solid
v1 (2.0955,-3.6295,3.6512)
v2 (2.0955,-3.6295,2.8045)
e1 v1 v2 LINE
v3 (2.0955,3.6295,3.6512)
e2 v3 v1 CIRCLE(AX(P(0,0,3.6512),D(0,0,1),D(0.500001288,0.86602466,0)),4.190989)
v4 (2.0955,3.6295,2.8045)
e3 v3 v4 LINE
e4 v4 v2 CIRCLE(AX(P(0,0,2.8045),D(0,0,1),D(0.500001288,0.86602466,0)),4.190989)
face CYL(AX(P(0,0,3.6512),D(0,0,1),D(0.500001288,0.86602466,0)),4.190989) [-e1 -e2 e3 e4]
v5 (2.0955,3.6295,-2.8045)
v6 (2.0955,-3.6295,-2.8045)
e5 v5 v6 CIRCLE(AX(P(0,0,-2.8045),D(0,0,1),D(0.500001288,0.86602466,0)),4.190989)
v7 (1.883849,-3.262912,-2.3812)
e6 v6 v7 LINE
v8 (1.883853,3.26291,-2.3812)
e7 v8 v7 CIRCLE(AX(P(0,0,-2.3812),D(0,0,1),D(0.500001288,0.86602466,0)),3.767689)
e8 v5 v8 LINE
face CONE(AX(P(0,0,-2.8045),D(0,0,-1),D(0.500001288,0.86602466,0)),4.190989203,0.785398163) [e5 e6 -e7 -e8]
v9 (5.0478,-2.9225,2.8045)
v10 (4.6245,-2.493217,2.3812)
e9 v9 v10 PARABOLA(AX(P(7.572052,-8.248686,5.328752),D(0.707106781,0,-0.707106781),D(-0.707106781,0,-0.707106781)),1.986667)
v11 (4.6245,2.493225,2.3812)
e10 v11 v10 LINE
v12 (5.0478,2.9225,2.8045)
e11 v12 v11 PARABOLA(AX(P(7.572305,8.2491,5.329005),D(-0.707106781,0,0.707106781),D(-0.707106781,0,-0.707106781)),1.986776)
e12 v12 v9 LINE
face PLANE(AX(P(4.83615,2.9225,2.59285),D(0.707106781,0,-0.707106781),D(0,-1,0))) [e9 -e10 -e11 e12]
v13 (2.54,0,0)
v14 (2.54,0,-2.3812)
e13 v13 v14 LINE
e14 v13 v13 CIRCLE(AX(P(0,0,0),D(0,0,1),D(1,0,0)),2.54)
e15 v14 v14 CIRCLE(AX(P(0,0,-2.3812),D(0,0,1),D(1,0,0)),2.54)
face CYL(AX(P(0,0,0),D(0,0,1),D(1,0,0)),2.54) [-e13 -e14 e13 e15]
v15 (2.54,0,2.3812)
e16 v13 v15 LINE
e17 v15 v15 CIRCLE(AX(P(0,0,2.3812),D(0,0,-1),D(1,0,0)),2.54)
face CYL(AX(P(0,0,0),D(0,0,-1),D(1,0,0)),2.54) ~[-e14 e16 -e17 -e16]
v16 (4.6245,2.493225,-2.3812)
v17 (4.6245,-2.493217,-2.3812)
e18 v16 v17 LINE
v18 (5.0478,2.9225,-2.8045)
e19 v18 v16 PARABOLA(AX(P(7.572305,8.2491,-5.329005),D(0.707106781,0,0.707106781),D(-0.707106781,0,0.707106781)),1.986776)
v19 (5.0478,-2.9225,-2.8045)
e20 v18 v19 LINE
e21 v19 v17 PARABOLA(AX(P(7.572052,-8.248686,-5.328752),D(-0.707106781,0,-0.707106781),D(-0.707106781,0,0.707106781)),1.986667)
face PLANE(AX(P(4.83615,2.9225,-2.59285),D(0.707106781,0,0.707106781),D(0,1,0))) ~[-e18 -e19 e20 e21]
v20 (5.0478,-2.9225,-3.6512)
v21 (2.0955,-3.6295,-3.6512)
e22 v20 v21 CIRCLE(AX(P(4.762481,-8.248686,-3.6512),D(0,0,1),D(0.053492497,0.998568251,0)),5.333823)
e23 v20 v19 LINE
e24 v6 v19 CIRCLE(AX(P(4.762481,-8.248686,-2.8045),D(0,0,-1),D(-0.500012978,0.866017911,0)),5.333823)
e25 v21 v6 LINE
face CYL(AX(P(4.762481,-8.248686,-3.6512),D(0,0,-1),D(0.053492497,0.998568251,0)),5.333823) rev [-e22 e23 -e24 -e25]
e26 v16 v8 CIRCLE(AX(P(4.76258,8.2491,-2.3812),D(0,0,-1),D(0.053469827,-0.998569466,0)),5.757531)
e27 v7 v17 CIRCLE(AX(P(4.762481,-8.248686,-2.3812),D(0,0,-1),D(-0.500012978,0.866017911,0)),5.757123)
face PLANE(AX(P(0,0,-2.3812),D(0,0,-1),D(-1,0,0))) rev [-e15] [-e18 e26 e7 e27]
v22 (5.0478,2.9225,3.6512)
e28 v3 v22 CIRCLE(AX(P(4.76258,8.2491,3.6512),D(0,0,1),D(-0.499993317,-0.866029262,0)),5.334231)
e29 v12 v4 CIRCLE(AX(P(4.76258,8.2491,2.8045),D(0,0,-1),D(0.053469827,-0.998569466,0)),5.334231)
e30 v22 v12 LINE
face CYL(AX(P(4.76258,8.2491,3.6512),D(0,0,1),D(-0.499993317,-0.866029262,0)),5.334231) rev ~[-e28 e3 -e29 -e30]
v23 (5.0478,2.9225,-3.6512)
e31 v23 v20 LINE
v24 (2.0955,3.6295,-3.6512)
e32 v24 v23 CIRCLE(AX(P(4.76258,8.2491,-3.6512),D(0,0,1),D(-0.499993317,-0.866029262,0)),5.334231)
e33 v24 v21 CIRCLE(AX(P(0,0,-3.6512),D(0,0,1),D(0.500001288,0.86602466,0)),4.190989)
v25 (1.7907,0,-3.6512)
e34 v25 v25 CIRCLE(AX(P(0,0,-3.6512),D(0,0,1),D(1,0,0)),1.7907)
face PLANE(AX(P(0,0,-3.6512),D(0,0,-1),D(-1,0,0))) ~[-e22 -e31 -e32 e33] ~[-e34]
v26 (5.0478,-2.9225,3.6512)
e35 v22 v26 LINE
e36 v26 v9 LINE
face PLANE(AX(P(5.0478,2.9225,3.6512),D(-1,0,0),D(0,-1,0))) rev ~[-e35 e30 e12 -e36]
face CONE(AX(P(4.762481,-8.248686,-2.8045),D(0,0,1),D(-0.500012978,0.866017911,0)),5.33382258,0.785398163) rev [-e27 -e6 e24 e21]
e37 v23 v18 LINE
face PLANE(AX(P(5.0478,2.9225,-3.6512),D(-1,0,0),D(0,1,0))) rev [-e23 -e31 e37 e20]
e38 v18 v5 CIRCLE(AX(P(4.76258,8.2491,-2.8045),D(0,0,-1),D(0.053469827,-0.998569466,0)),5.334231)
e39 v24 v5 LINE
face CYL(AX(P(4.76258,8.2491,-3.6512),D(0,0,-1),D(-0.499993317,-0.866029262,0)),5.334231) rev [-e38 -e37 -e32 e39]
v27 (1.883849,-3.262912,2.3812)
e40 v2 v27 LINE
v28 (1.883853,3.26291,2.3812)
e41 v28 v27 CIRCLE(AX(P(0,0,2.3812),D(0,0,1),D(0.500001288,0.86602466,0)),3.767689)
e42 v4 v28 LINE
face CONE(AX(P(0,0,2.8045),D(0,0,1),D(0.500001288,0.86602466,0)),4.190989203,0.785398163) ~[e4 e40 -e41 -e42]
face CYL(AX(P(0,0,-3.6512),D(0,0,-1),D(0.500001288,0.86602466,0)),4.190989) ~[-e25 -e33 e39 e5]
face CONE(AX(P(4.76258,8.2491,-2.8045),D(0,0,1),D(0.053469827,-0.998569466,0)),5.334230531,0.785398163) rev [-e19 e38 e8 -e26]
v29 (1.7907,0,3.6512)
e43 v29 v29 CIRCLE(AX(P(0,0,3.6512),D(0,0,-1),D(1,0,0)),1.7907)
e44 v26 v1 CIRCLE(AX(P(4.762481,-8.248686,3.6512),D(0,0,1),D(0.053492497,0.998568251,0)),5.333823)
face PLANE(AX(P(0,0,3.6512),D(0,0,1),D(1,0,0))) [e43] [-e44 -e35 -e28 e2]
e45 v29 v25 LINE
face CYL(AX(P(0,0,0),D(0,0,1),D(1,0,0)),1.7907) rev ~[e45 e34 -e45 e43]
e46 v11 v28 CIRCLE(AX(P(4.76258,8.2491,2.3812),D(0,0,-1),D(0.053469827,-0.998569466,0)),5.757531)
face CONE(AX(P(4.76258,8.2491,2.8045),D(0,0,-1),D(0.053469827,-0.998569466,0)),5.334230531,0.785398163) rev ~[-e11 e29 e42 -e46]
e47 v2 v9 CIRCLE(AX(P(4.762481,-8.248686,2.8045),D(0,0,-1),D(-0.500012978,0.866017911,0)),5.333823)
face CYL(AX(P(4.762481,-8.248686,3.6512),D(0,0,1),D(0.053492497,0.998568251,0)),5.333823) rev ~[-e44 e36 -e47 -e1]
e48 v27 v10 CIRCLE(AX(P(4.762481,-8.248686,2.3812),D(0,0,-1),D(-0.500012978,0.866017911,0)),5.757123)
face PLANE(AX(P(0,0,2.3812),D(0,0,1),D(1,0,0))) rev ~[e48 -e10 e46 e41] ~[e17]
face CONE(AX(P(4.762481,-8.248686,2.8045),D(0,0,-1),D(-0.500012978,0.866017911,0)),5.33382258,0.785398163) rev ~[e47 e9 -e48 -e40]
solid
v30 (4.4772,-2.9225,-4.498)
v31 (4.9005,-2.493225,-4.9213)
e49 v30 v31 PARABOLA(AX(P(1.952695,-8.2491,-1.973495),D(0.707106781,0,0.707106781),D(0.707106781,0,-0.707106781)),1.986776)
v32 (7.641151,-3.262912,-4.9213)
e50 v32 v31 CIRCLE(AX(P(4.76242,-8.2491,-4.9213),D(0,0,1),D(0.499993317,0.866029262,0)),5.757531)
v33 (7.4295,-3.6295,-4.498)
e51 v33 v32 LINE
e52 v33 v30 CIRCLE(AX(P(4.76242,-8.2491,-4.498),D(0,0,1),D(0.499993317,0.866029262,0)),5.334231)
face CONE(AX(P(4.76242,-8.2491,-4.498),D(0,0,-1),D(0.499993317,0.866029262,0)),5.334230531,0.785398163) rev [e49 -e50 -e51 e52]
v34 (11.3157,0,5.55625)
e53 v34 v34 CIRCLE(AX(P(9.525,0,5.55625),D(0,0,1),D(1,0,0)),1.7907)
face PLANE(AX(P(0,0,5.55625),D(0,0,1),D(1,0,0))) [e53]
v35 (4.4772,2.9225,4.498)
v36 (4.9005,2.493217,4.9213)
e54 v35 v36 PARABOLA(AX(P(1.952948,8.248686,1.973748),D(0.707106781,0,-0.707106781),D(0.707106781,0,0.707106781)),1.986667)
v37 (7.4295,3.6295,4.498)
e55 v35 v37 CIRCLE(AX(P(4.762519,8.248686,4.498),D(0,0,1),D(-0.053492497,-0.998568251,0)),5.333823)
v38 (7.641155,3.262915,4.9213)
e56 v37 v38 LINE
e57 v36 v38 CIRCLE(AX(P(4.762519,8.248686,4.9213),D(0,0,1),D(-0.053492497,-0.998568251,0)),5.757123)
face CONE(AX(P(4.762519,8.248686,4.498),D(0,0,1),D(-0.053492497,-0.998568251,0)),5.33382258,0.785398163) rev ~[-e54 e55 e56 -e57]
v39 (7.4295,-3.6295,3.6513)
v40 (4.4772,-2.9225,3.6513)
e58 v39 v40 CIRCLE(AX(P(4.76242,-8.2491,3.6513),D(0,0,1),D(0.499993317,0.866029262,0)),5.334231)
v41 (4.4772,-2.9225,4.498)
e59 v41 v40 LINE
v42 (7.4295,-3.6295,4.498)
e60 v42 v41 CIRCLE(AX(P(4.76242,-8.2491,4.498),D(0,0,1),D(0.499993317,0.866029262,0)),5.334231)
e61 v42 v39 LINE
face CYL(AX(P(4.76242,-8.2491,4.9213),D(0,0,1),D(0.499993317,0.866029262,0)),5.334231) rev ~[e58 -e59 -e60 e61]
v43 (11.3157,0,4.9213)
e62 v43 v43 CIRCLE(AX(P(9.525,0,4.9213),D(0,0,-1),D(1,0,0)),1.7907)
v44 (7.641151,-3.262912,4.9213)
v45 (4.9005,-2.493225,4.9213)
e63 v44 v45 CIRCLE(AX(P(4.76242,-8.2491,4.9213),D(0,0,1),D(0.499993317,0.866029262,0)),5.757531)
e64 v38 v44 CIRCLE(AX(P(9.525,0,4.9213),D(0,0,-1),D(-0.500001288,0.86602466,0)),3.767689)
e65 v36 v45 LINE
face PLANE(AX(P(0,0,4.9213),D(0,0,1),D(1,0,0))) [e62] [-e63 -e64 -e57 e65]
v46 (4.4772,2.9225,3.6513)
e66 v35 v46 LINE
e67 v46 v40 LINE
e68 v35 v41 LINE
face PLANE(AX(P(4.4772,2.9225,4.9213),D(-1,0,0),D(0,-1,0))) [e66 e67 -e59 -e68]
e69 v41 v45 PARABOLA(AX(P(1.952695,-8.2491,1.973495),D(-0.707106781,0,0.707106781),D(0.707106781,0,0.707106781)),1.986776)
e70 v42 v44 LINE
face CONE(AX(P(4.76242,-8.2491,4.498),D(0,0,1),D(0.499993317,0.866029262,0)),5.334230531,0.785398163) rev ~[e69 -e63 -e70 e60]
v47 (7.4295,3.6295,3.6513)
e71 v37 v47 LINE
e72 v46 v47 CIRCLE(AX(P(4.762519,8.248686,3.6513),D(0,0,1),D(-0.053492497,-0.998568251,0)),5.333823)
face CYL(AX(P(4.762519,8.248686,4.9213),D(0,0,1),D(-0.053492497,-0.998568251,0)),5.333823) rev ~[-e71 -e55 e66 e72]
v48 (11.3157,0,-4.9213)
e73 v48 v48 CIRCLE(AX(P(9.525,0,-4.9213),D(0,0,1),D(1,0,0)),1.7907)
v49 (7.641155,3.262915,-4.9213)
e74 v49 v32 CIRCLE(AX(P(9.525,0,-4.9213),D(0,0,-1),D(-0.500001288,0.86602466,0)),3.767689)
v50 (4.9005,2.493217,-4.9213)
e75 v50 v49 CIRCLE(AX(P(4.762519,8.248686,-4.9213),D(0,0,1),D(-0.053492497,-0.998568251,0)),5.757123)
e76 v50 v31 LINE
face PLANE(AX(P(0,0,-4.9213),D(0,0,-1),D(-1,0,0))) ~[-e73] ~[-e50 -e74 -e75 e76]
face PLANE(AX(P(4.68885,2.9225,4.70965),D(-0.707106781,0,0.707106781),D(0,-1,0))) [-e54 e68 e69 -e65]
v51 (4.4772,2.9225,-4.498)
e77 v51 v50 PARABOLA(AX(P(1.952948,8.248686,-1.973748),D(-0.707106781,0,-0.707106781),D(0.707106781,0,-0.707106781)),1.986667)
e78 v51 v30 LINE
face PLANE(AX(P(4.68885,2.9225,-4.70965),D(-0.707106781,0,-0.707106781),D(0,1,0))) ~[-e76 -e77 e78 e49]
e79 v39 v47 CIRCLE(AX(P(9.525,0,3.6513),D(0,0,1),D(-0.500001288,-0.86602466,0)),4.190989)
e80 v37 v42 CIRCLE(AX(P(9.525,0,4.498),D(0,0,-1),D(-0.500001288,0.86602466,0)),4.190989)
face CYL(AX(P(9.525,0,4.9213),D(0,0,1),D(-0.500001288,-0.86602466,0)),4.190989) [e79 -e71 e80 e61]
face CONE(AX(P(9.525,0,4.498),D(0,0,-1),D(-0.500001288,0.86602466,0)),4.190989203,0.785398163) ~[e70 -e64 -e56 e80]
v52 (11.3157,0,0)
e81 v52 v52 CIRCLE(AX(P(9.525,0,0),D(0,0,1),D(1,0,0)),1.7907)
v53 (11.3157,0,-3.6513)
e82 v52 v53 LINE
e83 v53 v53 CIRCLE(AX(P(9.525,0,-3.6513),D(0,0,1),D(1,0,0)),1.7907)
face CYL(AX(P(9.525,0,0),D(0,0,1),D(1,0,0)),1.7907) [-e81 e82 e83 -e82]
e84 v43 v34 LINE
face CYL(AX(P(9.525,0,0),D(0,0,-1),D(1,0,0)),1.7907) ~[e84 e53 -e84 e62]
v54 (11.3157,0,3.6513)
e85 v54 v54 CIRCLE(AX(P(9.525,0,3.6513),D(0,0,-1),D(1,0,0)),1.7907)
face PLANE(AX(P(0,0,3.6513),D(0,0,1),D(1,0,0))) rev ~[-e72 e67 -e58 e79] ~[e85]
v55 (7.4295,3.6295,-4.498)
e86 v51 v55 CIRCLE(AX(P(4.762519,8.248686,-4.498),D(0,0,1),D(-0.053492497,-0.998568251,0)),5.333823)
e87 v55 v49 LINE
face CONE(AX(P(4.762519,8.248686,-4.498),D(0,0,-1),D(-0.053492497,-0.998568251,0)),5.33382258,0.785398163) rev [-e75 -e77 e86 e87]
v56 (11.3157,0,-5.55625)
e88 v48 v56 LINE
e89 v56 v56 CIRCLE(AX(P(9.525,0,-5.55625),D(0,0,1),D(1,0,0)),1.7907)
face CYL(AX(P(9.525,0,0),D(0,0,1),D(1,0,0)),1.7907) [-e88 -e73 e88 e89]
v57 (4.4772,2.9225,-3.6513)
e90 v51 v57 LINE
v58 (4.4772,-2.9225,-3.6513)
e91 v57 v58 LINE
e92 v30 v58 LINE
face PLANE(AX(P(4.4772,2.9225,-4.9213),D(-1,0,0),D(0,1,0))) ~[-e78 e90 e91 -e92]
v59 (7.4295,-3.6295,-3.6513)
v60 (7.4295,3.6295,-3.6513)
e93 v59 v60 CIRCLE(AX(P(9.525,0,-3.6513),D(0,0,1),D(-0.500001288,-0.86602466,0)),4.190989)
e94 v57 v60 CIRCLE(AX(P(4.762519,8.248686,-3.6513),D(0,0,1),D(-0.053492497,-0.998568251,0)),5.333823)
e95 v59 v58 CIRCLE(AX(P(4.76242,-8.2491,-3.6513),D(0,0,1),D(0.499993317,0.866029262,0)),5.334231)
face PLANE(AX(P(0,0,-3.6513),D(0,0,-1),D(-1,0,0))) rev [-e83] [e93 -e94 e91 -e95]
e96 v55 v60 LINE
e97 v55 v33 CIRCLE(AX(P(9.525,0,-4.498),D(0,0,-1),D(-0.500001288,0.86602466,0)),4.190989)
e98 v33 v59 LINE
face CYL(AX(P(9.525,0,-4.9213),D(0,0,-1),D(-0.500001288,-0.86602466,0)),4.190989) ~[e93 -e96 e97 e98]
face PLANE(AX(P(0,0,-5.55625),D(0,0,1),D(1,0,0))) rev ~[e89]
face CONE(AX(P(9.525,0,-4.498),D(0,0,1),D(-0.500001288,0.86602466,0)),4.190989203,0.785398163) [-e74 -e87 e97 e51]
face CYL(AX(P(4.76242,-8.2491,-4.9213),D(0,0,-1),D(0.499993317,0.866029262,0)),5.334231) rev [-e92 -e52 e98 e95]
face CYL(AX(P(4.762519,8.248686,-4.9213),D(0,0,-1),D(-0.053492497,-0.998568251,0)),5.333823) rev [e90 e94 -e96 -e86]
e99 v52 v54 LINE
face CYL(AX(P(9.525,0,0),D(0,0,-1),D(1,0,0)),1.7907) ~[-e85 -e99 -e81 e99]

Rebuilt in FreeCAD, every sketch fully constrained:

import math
import FreeCAD as App
import Part
import Sketcher
Q = App.Units.Quantity


def edges_at(feature, points):
    """Names of the edges that pass closest to the given points."""
    edges = feature.Shape.Edges
    near = lambda p: min(range(len(edges)), key=lambda i: edges[i].distToShape(Part.Vertex(*p))[0])
    return sorted({f"Edge{near(p) + 1}" for p in points})

doc = App.newDocument("Part")
body = doc.addObject("PartDesign::Body", "Body")
body.AllowCompound = True

sketch1 = body.newObject("Sketcher::SketchObject", "Sketch")
sketch1.AttachmentSupport = (doc.getObject("XY_Plane"), [""])
sketch1.MapMode = "FlatFace"
sketch1.AttachmentOffset = App.Placement(App.Vector(0, 0, 3.6512), App.Rotation())
sketch1.addGeometry(Part.ArcOfCircle(Part.Circle(App.Vector(4.7625, 8.2489, 0), App.Vector(0, 0, 1), 5.334018), math.radians(-119.99989), math.radians(-86.933974)), False)
sketch1.addGeometry(Part.ArcOfCircle(Part.Circle(App.Vector(0, 0, 0), App.Vector(0, 0, 1), 4.190989), math.radians(59.999915), math.radians(300.000085)), False)
sketch1.addGeometry(Part.ArcOfCircle(Part.Circle(App.Vector(4.7625, -8.2489, 0), App.Vector(0, 0, 1), 5.334035), math.radians(86.933974), math.radians(119.99989)), False)
sketch1.addGeometry(Part.LineSegment(App.Vector(5.0478, -2.9225, 0), App.Vector(5.0478, 2.9225, 0)), False)
sketch1.addConstraint(Sketcher.Constraint("Tangent", 0, 1, 1, 1))
sketch1.addConstraint(Sketcher.Constraint("Tangent", 1, 2, 2, 2))
sketch1.addConstraint(Sketcher.Constraint("Coincident", 2, 1, 3, 1))
sketch1.addConstraint(Sketcher.Constraint("Coincident", 3, 2, 0, 2))
sketch1.addConstraint(Sketcher.Constraint("Vertical", 3))
sketch1.addConstraint(Sketcher.Constraint("Coincident", 1, 3, -1, 1))
sketch1.addConstraint(Sketcher.Constraint("Equal", 0, 2))
sketch1.addConstraint(Sketcher.Constraint("Vertical", 0, 3, 2, 3))
sketch1.addConstraint(Sketcher.Constraint("Radius", 0, Q("0.21 in")))
sketch1.addConstraint(Sketcher.Constraint("Radius", 1, Q("0.165 in")))
sketch1.addConstraint(Sketcher.Constraint("DistanceX", -1, 1, 0, 3, Q("0.1875 in")))
sketch1.addConstraint(Sketcher.Constraint("DistanceY", 3, 1, 3, 2, 5.845))
pad1 = body.newObject("PartDesign::Pad", "Pad")
pad1.Profile = sketch1
pad1.Length = Q("0.05 in")
pad1.Reversed = True
doc.recompute()

chamfer = body.newObject("PartDesign::Chamfer", "Chamfer")
chamfer.Base = (pad1, edges_at(pad1, [
    (-4.191, 0, 2.381),
    (3.52, 3.062, 2.381),
    (5.048, 0, 2.381),
    (3.52, -3.062, 2.381),
]))
chamfer.Size = 0.4233

sketch2 = body.newObject("Sketcher::SketchObject", "Sketch001")
sketch2.AttachmentSupport = (doc.getObject("XY_Plane"), [""])
sketch2.MapMode = "FlatFace"
sketch2.addGeometry(Part.Circle(App.Vector(0, 0, 0), App.Vector(0, 0, 1), 2.54), False)
sketch2.addConstraint(Sketcher.Constraint("Coincident", 0, 3, -1, 1))
sketch2.addConstraint(Sketcher.Constraint("Diameter", 0, Q("0.2 in")))
pad2 = body.newObject("PartDesign::Pad", "Pad001")
pad2.Profile = sketch2
pad2.Length = Q("0.2375 in")
pad2.Midplane = True
doc.recompute()

mirrored = body.newObject("PartDesign::Mirrored", "Mirrored")
mirrored.Originals = [pad1, chamfer]
mirrored.MirrorPlane = (doc.getObject("XY_Plane"), [""])
body.Tip = mirrored

sketch3 = body.newObject("Sketcher::SketchObject", "Sketch002")
sketch3.AttachmentSupport = (doc.getObject("XY_Plane"), [""])
sketch3.MapMode = "FlatFace"
sketch3.addGeometry(Part.Circle(App.Vector(0, 0, 0), App.Vector(0, 0, 1), 1.7907), False)
sketch3.addConstraint(Sketcher.Constraint("Coincident", 0, 3, -1, 1))
sketch3.addConstraint(Sketcher.Constraint("Diameter", 0, Q("0.141 in")))
pocket1 = body.newObject("PartDesign::Pocket", "Pocket")
pocket1.Profile = sketch3
pocket1.Type = "ThroughAll"
pocket1.Midplane = True

sketch4 = body.newObject("Sketcher::SketchObject", "Sketch003")
sketch4.AttachmentSupport = (doc.getObject("XY_Plane"), [""])
sketch4.MapMode = "FlatFace"
sketch4.AttachmentOffset = App.Placement(App.Vector(0, 0, 4.9213), App.Rotation())
sketch4.addGeometry(Part.ArcOfCircle(Part.Circle(App.Vector(4.7625, 8.2489, 0), App.Vector(0, 0, 1), 5.334035), math.radians(-93.066026), math.radians(-60.00011)), False)
sketch4.addGeometry(Part.LineSegment(App.Vector(4.4772, 2.9225, 0), App.Vector(4.4772, -2.9225, 0)), False)
sketch4.addGeometry(Part.ArcOfCircle(Part.Circle(App.Vector(4.7625, -8.2489, 0), App.Vector(0, 0, 1), 5.334018), math.radians(60.00011), math.radians(93.066026)), False)
sketch4.addGeometry(Part.ArcOfCircle(Part.Circle(App.Vector(9.525, 0, 0), App.Vector(0, 0, 1), 4.190989), math.radians(-120.000085), math.radians(120.000085)), False)
sketch4.addConstraint(Sketcher.Constraint("Coincident", 0, 1, 1, 1))
sketch4.addConstraint(Sketcher.Constraint("Coincident", 1, 2, 2, 2))
sketch4.addConstraint(Sketcher.Constraint("Tangent", 2, 1, 3, 1))
sketch4.addConstraint(Sketcher.Constraint("Tangent", 3, 2, 0, 2))
sketch4.addConstraint(Sketcher.Constraint("Vertical", 1))
sketch4.addConstraint(Sketcher.Constraint("Equal", 0, 2))
sketch4.addConstraint(Sketcher.Constraint("Symmetric", 0, 3, 2, 3, -1))
sketch4.addConstraint(Sketcher.Constraint("Radius", 0, Q("0.21 in")))
sketch4.addConstraint(Sketcher.Constraint("Radius", 3, Q("0.165 in")))
sketch4.addConstraint(Sketcher.Constraint("DistanceX", -1, 1, 0, 3, Q("0.1875 in")))
sketch4.addConstraint(Sketcher.Constraint("DistanceX", -1, 1, 3, 3, Q("0.375 in")))
sketch4.addConstraint(Sketcher.Constraint("DistanceY", 1, 2, 1, 1, 5.845))
pad3 = body.newObject("PartDesign::Pad", "Pad002")
pad3.Profile = sketch4
pad3.Length = Q("0.05 in")
pad3.Reversed = True
doc.recompute()

chamfer2 = body.newObject("PartDesign::Chamfer", "Chamfer001")
chamfer2.Base = (pad3, edges_at(pad3, [
    (6.005, 3.062, 4.921),
    (4.477, 0, 4.921),
    (6.005, -3.062, 4.921),
    (13.716, 0, 4.921),
]))
chamfer2.Size = 0.4233
doc.recompute()

mirrored2 = body.newObject("PartDesign::Mirrored", "Mirrored001")
mirrored2.Originals = [pad3, chamfer2]
mirrored2.MirrorPlane = (doc.getObject("XY_Plane"), [""])
body.Tip = mirrored2

sketch5 = body.newObject("Sketcher::SketchObject", "Sketch004")
sketch5.AttachmentSupport = (doc.getObject("XY_Plane"), [""])
sketch5.MapMode = "FlatFace"
sketch5.addGeometry(Part.Circle(App.Vector(9.525, 0, 0), App.Vector(0, 0, 1), 1.7907), False)
sketch5.addConstraint(Sketcher.Constraint("PointOnObject", 0, 3, -1))
sketch5.addConstraint(Sketcher.Constraint("Diameter", 0, Q("0.141 in")))
sketch5.addConstraint(Sketcher.Constraint("DistanceX", -1, 1, 0, 3, Q("0.375 in")))
pad4 = body.newObject("PartDesign::Pad", "Pad003")
pad4.Profile = sketch5
pad4.Length = Q("0.4375 in")
pad4.Midplane = True

doc.recompute()
